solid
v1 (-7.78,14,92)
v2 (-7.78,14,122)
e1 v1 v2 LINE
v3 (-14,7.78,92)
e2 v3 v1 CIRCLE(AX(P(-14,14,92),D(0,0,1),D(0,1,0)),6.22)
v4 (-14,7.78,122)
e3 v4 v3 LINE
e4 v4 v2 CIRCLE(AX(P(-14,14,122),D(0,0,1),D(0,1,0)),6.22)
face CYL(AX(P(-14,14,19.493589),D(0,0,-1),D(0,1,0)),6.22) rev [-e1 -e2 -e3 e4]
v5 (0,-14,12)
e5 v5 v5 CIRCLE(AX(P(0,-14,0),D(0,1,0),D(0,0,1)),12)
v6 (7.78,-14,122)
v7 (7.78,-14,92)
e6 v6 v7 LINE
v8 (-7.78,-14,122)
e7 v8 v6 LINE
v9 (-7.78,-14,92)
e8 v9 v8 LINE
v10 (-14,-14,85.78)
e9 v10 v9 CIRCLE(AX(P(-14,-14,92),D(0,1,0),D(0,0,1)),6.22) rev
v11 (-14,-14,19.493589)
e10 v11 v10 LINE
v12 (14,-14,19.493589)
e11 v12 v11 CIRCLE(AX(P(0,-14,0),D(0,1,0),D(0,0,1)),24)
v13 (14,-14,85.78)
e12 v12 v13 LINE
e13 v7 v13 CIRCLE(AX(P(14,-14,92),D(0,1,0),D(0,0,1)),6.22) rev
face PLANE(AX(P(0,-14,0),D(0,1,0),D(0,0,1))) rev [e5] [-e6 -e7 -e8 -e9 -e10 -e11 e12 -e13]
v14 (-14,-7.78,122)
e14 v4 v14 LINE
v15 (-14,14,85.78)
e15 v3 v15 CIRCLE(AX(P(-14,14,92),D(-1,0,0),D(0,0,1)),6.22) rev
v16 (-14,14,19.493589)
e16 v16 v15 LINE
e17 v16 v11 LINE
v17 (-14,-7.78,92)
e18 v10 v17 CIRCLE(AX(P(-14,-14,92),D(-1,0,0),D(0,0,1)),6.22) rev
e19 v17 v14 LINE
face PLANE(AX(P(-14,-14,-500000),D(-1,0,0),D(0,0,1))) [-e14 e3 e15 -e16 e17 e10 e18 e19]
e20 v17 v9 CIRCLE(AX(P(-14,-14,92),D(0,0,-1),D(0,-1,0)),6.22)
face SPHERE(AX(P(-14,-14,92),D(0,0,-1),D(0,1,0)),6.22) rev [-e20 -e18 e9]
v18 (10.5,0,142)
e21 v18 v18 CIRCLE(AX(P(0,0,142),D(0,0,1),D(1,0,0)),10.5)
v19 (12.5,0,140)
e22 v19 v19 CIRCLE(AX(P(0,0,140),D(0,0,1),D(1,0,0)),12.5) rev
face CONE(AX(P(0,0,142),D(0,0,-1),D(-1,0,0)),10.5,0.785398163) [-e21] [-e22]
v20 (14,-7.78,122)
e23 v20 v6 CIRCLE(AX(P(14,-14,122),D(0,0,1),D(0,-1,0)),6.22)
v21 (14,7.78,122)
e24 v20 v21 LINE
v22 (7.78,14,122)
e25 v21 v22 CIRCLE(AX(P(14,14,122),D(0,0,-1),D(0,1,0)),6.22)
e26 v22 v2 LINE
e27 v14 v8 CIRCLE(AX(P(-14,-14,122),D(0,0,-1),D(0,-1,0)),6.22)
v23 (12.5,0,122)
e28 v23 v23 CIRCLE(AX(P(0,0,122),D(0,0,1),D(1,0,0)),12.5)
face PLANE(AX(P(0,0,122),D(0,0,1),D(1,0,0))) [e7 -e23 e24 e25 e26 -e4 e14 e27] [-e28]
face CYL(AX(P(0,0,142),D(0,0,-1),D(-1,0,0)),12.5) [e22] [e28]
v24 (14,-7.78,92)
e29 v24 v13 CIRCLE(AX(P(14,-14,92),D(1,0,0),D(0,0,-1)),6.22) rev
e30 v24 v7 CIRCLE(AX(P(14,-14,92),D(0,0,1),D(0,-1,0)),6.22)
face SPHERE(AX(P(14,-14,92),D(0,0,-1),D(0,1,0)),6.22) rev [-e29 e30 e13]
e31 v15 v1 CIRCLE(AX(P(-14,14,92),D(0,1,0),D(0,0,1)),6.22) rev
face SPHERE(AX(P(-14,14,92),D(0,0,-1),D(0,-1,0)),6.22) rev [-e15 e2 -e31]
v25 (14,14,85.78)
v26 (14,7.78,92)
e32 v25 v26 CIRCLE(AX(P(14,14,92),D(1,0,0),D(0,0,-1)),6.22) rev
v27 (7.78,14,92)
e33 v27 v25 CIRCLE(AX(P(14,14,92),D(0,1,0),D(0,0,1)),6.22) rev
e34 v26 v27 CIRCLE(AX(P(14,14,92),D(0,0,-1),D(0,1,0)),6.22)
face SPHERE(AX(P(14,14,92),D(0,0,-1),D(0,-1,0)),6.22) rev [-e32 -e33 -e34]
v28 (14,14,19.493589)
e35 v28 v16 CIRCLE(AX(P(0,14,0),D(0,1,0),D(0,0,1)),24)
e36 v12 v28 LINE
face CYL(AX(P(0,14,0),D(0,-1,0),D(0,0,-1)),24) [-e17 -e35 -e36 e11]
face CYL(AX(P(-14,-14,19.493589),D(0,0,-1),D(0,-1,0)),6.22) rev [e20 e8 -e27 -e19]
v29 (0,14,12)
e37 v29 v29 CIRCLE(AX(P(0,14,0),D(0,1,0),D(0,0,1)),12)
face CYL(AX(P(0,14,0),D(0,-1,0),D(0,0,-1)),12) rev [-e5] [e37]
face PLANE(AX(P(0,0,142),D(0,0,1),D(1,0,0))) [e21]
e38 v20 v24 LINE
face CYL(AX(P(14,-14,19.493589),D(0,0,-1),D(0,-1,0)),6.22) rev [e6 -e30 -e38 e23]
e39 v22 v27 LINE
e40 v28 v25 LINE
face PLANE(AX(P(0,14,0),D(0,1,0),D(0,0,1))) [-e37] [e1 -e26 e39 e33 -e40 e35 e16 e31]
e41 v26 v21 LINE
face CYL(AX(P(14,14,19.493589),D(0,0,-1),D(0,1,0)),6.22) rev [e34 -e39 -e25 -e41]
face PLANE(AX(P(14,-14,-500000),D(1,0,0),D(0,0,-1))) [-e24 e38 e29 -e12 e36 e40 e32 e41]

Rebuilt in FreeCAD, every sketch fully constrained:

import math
import FreeCAD as App
import Part
import Sketcher
Q = App.Units.Quantity


def edges_at(feature, points):
    """Names of the edges that pass closest to the given points."""
    edges = feature.Shape.Edges
    near = lambda p: min(range(len(edges)), key=lambda i: edges[i].distToShape(Part.Vertex(*p))[0])
    return sorted({f"Edge{near(p) + 1}" for p in points})

doc = App.newDocument("Part")
body = doc.addObject("PartDesign::Body", "Body")

sketch1 = body.newObject("Sketcher::SketchObject", "Sketch")
sketch1.AttachmentSupport = (doc.getObject("XZ_Plane"), [""])
sketch1.MapMode = "FlatFace"
sketch1.addGeometry([
    Part.Circle(App.Vector(0, 0, 0), App.Vector(0, 0, 1), 24),
    Part.Circle(App.Vector(0, 0, 0), App.Vector(0, 0, 1), 12),
], False)
sketch1.addConstraint([
    Sketcher.Constraint("Coincident", 0, 3, -1, 1),
    Sketcher.Constraint("Coincident", 1, 3, -1, 1),
    Sketcher.Constraint("Diameter", 0, Q("48 mm")),
    Sketcher.Constraint("Diameter", 1, Q("24 mm")),
])
pad1 = body.newObject("PartDesign::Pad", "Pad")
pad1.Profile = sketch1
pad1.Length = 28
pad1.Midplane = True

sketch2 = body.newObject("Sketcher::SketchObject", "Sketch001")
sketch2.AttachmentSupport = (doc.getObject("XY_Plane"), [""])
sketch2.MapMode = "FlatFace"
sketch2.AttachmentOffset = App.Placement(App.Vector(0, 0, 122), App.Rotation())
sketch2.addGeometry([
    Part.LineSegment(App.Vector(-14, 14, 0), App.Vector(-14, -14, 0)),
    Part.LineSegment(App.Vector(-14, -14, 0), App.Vector(14, -14, 0)),
    Part.LineSegment(App.Vector(14, -14, 0), App.Vector(14, 14, 0)),
    Part.LineSegment(App.Vector(14, 14, 0), App.Vector(-14, 14, 0)),
], False)
sketch2.addConstraint([
    Sketcher.Constraint("Coincident", 0, 2, 1, 1),
    Sketcher.Constraint("Coincident", 1, 2, 2, 1),
    Sketcher.Constraint("Coincident", 2, 2, 3, 1),
    Sketcher.Constraint("Coincident", 3, 2, 0, 1),
    Sketcher.Constraint("Vertical", 0),
    Sketcher.Constraint("Horizontal", 1),
    Sketcher.Constraint("Vertical", 2),
    Sketcher.Constraint("Horizontal", 3),
    Sketcher.Constraint("Symmetric", 0, 2, 2, 2, -1, 1),
    Sketcher.Constraint("Equal", 3, 0),
    Sketcher.Constraint("DistanceX", 1, 1, 1, 2, Q("28 mm")),
])
pad2 = body.newObject("PartDesign::Pad", "Pad001")
pad2.Profile = sketch2
pad2.Type = "UpToFirst"
pad2.Reversed = True

sketch3 = body.newObject("Sketcher::SketchObject", "Sketch002")
sketch3.AttachmentSupport = (doc.getObject("YZ_Plane"), [""])
sketch3.MapMode = "FlatFace"
sketch3.AttachmentOffset = App.Placement(App.Vector(0, 0, 14), App.Rotation())
sketch3.addGeometry([
    Part.LineSegment(App.Vector(14, 122, 0), App.Vector(8, 122, 0)),
    Part.LineSegment(App.Vector(8, 122, 0), App.Vector(8, 92, 0)),
    Part.ArcOfCircle(Part.Circle(App.Vector(14, 92, 0), App.Vector(0, 0, 1), 6), math.radians(180), math.radians(270)),
    Part.LineSegment(App.Vector(14, 86, 0), App.Vector(14, 122, 0)),
], False)
sketch3.addGeometry(Part.LineSegment(App.Vector(14, 86, 0), App.Vector(14, 122, 0)), True)
sketch3.addConstraint([
    Sketcher.Constraint("Coincident", 0, 2, 1, 1),
    Sketcher.Constraint("Tangent", 1, 2, 2, 1),
    Sketcher.Constraint("Coincident", 2, 2, 3, 1),
    Sketcher.Constraint("Coincident", 3, 2, 0, 1),
    Sketcher.Constraint("Horizontal", 0),
    Sketcher.Constraint("Vertical", 1),
    Sketcher.Constraint("Vertical", 3),
    Sketcher.Constraint("Vertical", 4),
    Sketcher.Constraint("Coincident", 4, 1, 2, 2),
    Sketcher.Constraint("Horizontal", 0, 2, 4, 2),
    Sketcher.Constraint("DistanceY", 1, 2, 1, 1, Q("30 mm")),
    Sketcher.Constraint("Radius", 2, Q("6.22 mm")),
    Sketcher.Constraint("DistanceX", -1, 1, 2, 3, Q("14 mm")),
    Sketcher.Constraint("DistanceY", -1, 1, 2, 3, Q("92 mm")),
    Sketcher.Constraint("DistanceX", -1, 1, 2, 2, Q("14 mm")),
])
groove = body.newObject("PartDesign::Groove", "Groove")
groove.Profile = sketch3
groove.ReferenceAxis = (sketch3, ["Axis0"])
groove.Angle = 360
doc.recompute()

mirrored = body.newObject("PartDesign::Mirrored", "Mirrored")
mirrored.Originals = [groove]
mirrored.MirrorPlane = (doc.getObject("YZ_Plane"), [""])
body.Tip = mirrored
doc.recompute()

mirrored2 = body.newObject("PartDesign::Mirrored", "Mirrored001")
mirrored2.Originals = [groove]
mirrored2.MirrorPlane = (doc.getObject("XZ_Plane"), [""])
body.Tip = mirrored2

sketch4 = body.newObject("Sketcher::SketchObject", "Sketch003")
sketch4.AttachmentSupport = (doc.getObject("YZ_Plane"), [""])
sketch4.MapMode = "FlatFace"
sketch4.AttachmentOffset = App.Placement(App.Vector(0, 0, -14), App.Rotation())
sketch4.addGeometry([
    Part.LineSegment(App.Vector(-14, 122, 0), App.Vector(-8, 122, 0)),
    Part.LineSegment(App.Vector(-8, 122, 0), App.Vector(-8, 92, 0)),
    Part.ArcOfCircle(Part.Circle(App.Vector(-14, 92, 0), App.Vector(0, 0, 1), 6), math.radians(-90), math.radians(0)),
    Part.LineSegment(App.Vector(-14, 86, 0), App.Vector(-14, 122, 0)),
], False)
sketch4.addGeometry(Part.LineSegment(App.Vector(-14, 86, 0), App.Vector(-14, 122, 0)), True)
sketch4.addConstraint([
    Sketcher.Constraint("Coincident", 0, 2, 1, 1),
    Sketcher.Constraint("Tangent", 1, 2, 2, 2),
    Sketcher.Constraint("Coincident", 2, 1, 3, 1),
    Sketcher.Constraint("Coincident", 3, 2, 0, 1),
    Sketcher.Constraint("Horizontal", 0),
    Sketcher.Constraint("Vertical", 1),
    Sketcher.Constraint("Vertical", 3),
    Sketcher.Constraint("Vertical", 4),
    Sketcher.Constraint("Coincident", 4, 1, 2, 1),
    Sketcher.Constraint("Horizontal", 0, 2, 4, 2),
    Sketcher.Constraint("DistanceY", 1, 2, 1, 1, Q("30 mm")),
    Sketcher.Constraint("Radius", 2, Q("6.22 mm")),
    Sketcher.Constraint("DistanceX", 2, 3, -1, 1, Q("14 mm")),
    Sketcher.Constraint("DistanceY", -1, 1, 2, 3, Q("92 mm")),
    Sketcher.Constraint("DistanceX", 2, 1, -1, 1, Q("14 mm")),
])
groove2 = body.newObject("PartDesign::Groove", "Groove001")
groove2.Profile = sketch4
groove2.ReferenceAxis = (sketch4, ["Axis0"])
groove2.Angle = 360

sketch5 = body.newObject("Sketcher::SketchObject", "Sketch004")
sketch5.AttachmentSupport = (doc.getObject("XY_Plane"), [""])
sketch5.MapMode = "FlatFace"
sketch5.AttachmentOffset = App.Placement(App.Vector(0, 0, 122), App.Rotation())
sketch5.addGeometry(Part.Circle(App.Vector(0, 0, 0), App.Vector(0, 0, 1), 12), False)
sketch5.addConstraint([
    Sketcher.Constraint("Coincident", 0, 3, -1, 1),
    Sketcher.Constraint("Diameter", 0, Q("25 mm")),
])
pad3 = body.newObject("PartDesign::Pad", "Pad002")
pad3.Profile = sketch5
pad3.Length = 20
doc.recompute()

chamfer = body.newObject("PartDesign::Chamfer", "Chamfer")
chamfer.Base = (pad3, edges_at(pad3, [(-12.5, 0, 142)]))
chamfer.Size = 2

doc.recompute()
